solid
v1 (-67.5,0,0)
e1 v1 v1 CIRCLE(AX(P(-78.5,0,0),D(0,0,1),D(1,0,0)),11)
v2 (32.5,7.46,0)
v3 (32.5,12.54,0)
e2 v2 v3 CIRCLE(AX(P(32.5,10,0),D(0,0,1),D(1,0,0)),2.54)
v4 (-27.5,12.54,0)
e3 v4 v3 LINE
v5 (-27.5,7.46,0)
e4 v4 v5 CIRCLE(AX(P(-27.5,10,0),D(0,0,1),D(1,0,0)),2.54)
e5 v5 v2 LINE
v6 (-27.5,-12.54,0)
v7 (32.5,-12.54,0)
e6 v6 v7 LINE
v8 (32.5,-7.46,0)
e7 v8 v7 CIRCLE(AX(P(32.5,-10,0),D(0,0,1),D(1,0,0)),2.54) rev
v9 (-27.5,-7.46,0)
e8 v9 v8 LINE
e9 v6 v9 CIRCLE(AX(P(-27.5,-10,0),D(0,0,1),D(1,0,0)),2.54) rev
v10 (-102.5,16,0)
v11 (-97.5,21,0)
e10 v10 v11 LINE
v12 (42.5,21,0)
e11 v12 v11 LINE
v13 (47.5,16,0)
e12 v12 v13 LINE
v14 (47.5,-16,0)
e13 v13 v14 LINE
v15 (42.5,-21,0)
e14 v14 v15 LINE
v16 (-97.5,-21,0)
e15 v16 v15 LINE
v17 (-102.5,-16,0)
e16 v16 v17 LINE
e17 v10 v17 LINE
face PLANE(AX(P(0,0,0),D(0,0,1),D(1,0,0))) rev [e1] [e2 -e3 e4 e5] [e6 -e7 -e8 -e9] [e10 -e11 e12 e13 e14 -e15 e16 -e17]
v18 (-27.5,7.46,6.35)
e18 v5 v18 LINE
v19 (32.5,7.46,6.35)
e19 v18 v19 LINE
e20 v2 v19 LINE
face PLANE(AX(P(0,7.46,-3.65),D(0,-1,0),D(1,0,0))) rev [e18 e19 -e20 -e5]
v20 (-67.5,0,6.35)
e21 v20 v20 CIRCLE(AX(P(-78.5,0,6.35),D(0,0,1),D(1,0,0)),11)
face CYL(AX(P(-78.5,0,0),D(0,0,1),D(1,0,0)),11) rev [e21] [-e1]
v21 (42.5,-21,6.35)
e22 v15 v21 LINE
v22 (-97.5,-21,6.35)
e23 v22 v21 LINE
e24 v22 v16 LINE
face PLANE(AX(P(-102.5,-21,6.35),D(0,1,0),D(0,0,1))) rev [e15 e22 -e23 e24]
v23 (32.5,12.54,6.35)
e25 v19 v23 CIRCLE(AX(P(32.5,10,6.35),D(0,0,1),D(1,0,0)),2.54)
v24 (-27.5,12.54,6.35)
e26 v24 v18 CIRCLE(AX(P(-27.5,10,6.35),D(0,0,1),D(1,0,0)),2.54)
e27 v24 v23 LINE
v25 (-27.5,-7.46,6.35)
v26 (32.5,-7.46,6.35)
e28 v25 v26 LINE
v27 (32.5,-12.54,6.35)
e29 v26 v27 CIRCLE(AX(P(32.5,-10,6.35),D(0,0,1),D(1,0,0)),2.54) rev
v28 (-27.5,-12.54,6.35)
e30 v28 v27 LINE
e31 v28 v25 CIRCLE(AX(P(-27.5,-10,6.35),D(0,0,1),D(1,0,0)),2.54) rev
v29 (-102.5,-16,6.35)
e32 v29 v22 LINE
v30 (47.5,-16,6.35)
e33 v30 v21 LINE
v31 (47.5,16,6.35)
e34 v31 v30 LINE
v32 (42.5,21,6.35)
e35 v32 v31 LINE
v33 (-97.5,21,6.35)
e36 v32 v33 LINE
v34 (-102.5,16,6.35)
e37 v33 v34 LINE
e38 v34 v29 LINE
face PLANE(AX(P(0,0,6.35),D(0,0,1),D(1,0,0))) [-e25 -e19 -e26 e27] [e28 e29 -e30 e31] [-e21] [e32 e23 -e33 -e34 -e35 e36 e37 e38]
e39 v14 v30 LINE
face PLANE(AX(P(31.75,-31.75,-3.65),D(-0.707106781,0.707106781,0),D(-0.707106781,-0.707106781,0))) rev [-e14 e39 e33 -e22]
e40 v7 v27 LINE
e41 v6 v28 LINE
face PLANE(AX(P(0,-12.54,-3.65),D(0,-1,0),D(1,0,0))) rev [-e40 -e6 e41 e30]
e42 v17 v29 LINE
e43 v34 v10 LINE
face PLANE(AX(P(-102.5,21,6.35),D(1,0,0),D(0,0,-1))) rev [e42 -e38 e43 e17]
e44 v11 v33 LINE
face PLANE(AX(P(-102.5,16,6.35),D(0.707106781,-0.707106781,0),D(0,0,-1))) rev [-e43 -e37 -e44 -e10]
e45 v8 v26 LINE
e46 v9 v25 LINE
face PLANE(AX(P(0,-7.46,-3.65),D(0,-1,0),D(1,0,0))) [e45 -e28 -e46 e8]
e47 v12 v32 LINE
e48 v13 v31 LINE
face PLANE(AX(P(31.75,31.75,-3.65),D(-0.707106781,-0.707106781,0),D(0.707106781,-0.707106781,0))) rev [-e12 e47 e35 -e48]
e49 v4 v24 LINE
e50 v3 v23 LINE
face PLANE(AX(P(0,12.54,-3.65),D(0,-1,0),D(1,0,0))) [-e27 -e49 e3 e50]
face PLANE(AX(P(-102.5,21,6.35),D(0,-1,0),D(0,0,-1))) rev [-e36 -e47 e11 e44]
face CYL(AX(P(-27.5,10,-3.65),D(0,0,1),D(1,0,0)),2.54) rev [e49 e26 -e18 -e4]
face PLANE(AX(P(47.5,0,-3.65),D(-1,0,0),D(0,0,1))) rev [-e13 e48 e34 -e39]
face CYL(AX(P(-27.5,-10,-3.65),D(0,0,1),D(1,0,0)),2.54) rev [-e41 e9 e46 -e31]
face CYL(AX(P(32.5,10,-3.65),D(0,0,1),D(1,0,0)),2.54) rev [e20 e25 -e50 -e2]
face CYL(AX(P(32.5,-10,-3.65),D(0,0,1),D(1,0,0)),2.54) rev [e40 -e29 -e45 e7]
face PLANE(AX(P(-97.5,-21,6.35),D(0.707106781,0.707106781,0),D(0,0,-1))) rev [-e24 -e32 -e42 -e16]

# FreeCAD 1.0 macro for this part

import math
import FreeCAD as App
import Part
import Sketcher
from FreeCAD import Vector
Q = App.Units.Quantity


def edges_at(feature, points):
    """Names of the edges that pass closest to the given points."""
    edges = feature.Shape.Edges
    near = lambda p: min(range(len(edges)), key=lambda i: edges[i].distToShape(Part.Vertex(*p))[0])
    return sorted({f"Edge{near(p) + 1}" for p in points})

doc = App.newDocument("Part")
body = doc.addObject("PartDesign::Body", "Body")

# Sketch on XY plane
sketch1 = doc.addObject("Sketcher::SketchObject", "Sketch")
body.addObject(sketch1)
sketch1.AttachmentSupport = (doc.XY_Plane, [""])
sketch1.MapMode = "FlatFace"
sketch1.addGeometry([
    Part.LineSegment(Vector(-102, 21, 0), Vector(-102, -21, 0)),
    Part.LineSegment(Vector(-102, -21, 0), Vector(102, -21, 0)),
    Part.LineSegment(Vector(102, -21, 0), Vector(102, 21, 0)),
    Part.LineSegment(Vector(102, 21, 0), Vector(-102, 21, 0)),
], False)
sketch1.addConstraint([
    Sketcher.Constraint("Coincident", 0, 2, 1, 1),
    Sketcher.Constraint("Coincident", 1, 2, 2, 1),
    Sketcher.Constraint("Coincident", 2, 2, 3, 1),
    Sketcher.Constraint("Coincident", 3, 2, 0, 1),
    Sketcher.Constraint("Vertical", 0),
    Sketcher.Constraint("Horizontal", 1),
    Sketcher.Constraint("Vertical", 2),
    Sketcher.Constraint("Horizontal", 3),
    Sketcher.Constraint("Symmetric", 0, 2, 2, 2, -1, 1),
    Sketcher.Constraint("DistanceX", 1, 1, 1, 2, Q("205 mm")),
    Sketcher.Constraint("DistanceY", 0, 2, 0, 1, Q("42 mm")),
])
pad1 = doc.addObject("PartDesign::Pad", "Pad")
body.addObject(pad1)
pad1.Profile = sketch1
pad1.Length = 6.35

# Sketch on XY plane
sketch2 = doc.addObject("Sketcher::SketchObject", "Sketch001")
body.addObject(sketch2)
sketch2.AttachmentSupport = (doc.XY_Plane, [""])
sketch2.MapMode = "FlatFace"
sketch2.AttachmentOffset = App.Placement(Vector(0, 0, 6.35), App.Rotation())
sketch2.addGeometry(Part.Circle(Vector(-78, 0, 0), Vector(0, 0, 1), 11), False)
sketch2.addConstraint([
    Sketcher.Constraint("PointOnObject", 0, 3, -1),
    Sketcher.Constraint("Diameter", 0, Q("22 mm")),
    Sketcher.Constraint("DistanceX", 0, 3, -1, 1, Q("78.5 mm")),
])
pocket1 = doc.addObject("PartDesign::Pocket", "Pocket")
body.addObject(pocket1)
pocket1.Profile = sketch2
pocket1.Type = "ThroughAll"
doc.recompute()

chamfer = doc.addObject("PartDesign::Chamfer", "Chamfer")
body.addObject(chamfer)
chamfer.Base = (pocket1, edges_at(pocket1, [
    (102.5, -21, 3.175),
    (-102.5, -21, 3.175),
    (-102.5, 21, 3.175),
    (102.5, 21, 3.175),
]))
chamfer.Size = 5

# Sketch on XY plane
sketch3 = doc.addObject("Sketcher::SketchObject", "Sketch002")
body.addObject(sketch3)
sketch3.AttachmentSupport = (doc.XY_Plane, [""])
sketch3.MapMode = "FlatFace"
sketch3.AttachmentOffset = App.Placement(Vector(0, 0, 6.35), App.Rotation())
sketch3.addGeometry(Part.Circle(Vector(82, 0, 0), Vector(0, 0, 1), 11), False)
sketch3.addConstraint([
    Sketcher.Constraint("PointOnObject", 0, 3, -1),
    Sketcher.Constraint("Diameter", 0, Q("22 mm")),
    Sketcher.Constraint("DistanceX", -1, 1, 0, 3, Q("82.5 mm")),
])
pocket2 = doc.addObject("PartDesign::Pocket", "Pocket001")
body.addObject(pocket2)
pocket2.Profile = sketch3
pocket2.Type = "ThroughAll"

# Sketch on XY plane
sketch4 = doc.addObject("Sketcher::SketchObject", "Sketch003")
body.addObject(sketch4)
sketch4.AttachmentSupport = (doc.XY_Plane, [""])
sketch4.MapMode = "FlatFace"
sketch4.AttachmentOffset = App.Placement(Vector(0, 0, 6.35), App.Rotation())
sketch4.addGeometry([
    Part.LineSegment(Vector(42.5, 21, 0), Vector(47.5, 16, 0)),  # 0
    Part.LineSegment(Vector(47.5, 16, 0), Vector(47.5, -16, 0)),  # 1
    Part.LineSegment(Vector(47.5, -16, 0), Vector(42.5, -21, 0)),  # 2
    Part.LineSegment(Vector(42.5, -21, 0), Vector(97.5, -21, 0)),  # 3
    Part.LineSegment(Vector(97.5, -21, 0), Vector(102.5, -16, 0)),  # 4
    Part.LineSegment(Vector(102.5, -16, 0), Vector(102.5, 16, 0)),  # 5
    Part.LineSegment(Vector(102.5, 16, 0), Vector(97.5, 21, 0)),  # 6
    Part.LineSegment(Vector(97.5, 21, 0), Vector(42.5, 21, 0)),  # 7
    Part.Circle(Vector(82.5, 0, 0), Vector(0, 0, 1), 11),  # 8
    Part.LineSegment(Vector(-27.5, 7.5, 0), Vector(32.5, 7.5, 0)),  # 9
    Part.ArcOfCircle(Part.Circle(Vector(32.5, 10, 0), Vector(0, 0, 1), 2.5), math.radians(-90), math.radians(90)),  # 10
    Part.LineSegment(Vector(32.5, 12.5, 0), Vector(-27.5, 12.5, 0)),  # 11
    Part.ArcOfCircle(Part.Circle(Vector(-27.5, 10, 0), Vector(0, 0, 1), 2.5), math.radians(90), math.radians(270)),  # 12
    Part.ArcOfCircle(Part.Circle(Vector(32.5, -10, 0), Vector(0, 0, 1), 2.5), math.radians(-90), math.radians(90)),  # 13
    Part.LineSegment(Vector(32.5, -7.5, 0), Vector(-27.5, -7.5, 0)),  # 14
    Part.ArcOfCircle(Part.Circle(Vector(-27.5, -10, 0), Vector(0, 0, 1), 2.5), math.radians(90), math.radians(270)),  # 15
    Part.LineSegment(Vector(-27.5, -12.5, 0), Vector(32.5, -12.5, 0)),  # 16
], False)
sketch4.addConstraint([
    Sketcher.Constraint("Coincident", 0, 2, 1, 1),
    Sketcher.Constraint("Coincident", 1, 2, 2, 1),
    Sketcher.Constraint("Coincident", 2, 2, 3, 1),
    Sketcher.Constraint("Coincident", 3, 2, 4, 1),
    Sketcher.Constraint("Coincident", 4, 2, 5, 1),
    Sketcher.Constraint("Coincident", 5, 2, 6, 1),
    Sketcher.Constraint("Coincident", 6, 2, 7, 1),
    Sketcher.Constraint("Coincident", 7, 2, 0, 1),
    Sketcher.Constraint("Tangent", 9, 2, 10, 1),
    Sketcher.Constraint("Tangent", 10, 2, 11, 1),
    Sketcher.Constraint("Tangent", 11, 2, 12, 1),
    Sketcher.Constraint("Tangent", 12, 2, 9, 1),
    Sketcher.Constraint("Tangent", 13, 2, 14, 1),
    Sketcher.Constraint("Tangent", 14, 2, 15, 1),
    Sketcher.Constraint("Tangent", 15, 2, 16, 1),
    Sketcher.Constraint("Tangent", 16, 2, 13, 1),
    Sketcher.Constraint("Vertical", 1),
    Sketcher.Constraint("Horizontal", 3),
    Sketcher.Constraint("Vertical", 5),
    Sketcher.Constraint("Horizontal", 7),
    Sketcher.Constraint("Horizontal", 9),
    Sketcher.Constraint("Horizontal", 11),
    Sketcher.Constraint("Horizontal", 14),
    Sketcher.Constraint("Horizontal", 16),
    Sketcher.Constraint("Equal", 12, 13),
    Sketcher.Constraint("Symmetric", 10, 3, 13, 3, -1),
    Sketcher.Constraint("Symmetric", 3, 2, 6, 2, -1),
    Sketcher.Constraint("PointOnObject", 8, 3, -1),
    Sketcher.Constraint("Perpendicular", 0, 2),
    Sketcher.Constraint("Parallel", 2, 4),
    Sketcher.Constraint("Perpendicular", 4, 6),
    Sketcher.Constraint("Horizontal", 1, 2, 4, 2),
    Sketcher.Constraint("Horizontal", 0, 2, 5, 2),
    Sketcher.Constraint("Vertical", 12, 3, 15, 3),
    Sketcher.Constraint("Equal", 0, 2),
    Sketcher.Constraint("Diameter", 8, Q("22 mm")),
    Sketcher.Constraint("DistanceX", 3, 1, 3, 2, Q("55 mm")),
    Sketcher.Constraint("DistanceX", 9, 1, 9, 2, Q("60 mm")),
    Sketcher.Constraint("DistanceY", 1, 2, 1, 1, Q("32 mm")),
    Sketcher.Constraint("Radius", 10, Q("2.54 mm")),
    Sketcher.Constraint("DistanceY", -1, 1, 10, 3, Q("10 mm")),
    Sketcher.Constraint("DistanceY", 2, 2, -1, 1, Q("21 mm")),
    Sketcher.Constraint("DistanceX", 10, 3, 8, 3, Q("50 mm")),
    Sketcher.Constraint("DistanceX", 10, 3, 0, 2, Q("15 mm")),
    Sketcher.Constraint("DistanceX", -1, 1, 8, 3, Q("82.5 mm")),
])
pocket3 = doc.addObject("PartDesign::Pocket", "Pocket002")
body.addObject(pocket3)
pocket3.Profile = sketch4
pocket3.Length = 10

doc.recompute()
